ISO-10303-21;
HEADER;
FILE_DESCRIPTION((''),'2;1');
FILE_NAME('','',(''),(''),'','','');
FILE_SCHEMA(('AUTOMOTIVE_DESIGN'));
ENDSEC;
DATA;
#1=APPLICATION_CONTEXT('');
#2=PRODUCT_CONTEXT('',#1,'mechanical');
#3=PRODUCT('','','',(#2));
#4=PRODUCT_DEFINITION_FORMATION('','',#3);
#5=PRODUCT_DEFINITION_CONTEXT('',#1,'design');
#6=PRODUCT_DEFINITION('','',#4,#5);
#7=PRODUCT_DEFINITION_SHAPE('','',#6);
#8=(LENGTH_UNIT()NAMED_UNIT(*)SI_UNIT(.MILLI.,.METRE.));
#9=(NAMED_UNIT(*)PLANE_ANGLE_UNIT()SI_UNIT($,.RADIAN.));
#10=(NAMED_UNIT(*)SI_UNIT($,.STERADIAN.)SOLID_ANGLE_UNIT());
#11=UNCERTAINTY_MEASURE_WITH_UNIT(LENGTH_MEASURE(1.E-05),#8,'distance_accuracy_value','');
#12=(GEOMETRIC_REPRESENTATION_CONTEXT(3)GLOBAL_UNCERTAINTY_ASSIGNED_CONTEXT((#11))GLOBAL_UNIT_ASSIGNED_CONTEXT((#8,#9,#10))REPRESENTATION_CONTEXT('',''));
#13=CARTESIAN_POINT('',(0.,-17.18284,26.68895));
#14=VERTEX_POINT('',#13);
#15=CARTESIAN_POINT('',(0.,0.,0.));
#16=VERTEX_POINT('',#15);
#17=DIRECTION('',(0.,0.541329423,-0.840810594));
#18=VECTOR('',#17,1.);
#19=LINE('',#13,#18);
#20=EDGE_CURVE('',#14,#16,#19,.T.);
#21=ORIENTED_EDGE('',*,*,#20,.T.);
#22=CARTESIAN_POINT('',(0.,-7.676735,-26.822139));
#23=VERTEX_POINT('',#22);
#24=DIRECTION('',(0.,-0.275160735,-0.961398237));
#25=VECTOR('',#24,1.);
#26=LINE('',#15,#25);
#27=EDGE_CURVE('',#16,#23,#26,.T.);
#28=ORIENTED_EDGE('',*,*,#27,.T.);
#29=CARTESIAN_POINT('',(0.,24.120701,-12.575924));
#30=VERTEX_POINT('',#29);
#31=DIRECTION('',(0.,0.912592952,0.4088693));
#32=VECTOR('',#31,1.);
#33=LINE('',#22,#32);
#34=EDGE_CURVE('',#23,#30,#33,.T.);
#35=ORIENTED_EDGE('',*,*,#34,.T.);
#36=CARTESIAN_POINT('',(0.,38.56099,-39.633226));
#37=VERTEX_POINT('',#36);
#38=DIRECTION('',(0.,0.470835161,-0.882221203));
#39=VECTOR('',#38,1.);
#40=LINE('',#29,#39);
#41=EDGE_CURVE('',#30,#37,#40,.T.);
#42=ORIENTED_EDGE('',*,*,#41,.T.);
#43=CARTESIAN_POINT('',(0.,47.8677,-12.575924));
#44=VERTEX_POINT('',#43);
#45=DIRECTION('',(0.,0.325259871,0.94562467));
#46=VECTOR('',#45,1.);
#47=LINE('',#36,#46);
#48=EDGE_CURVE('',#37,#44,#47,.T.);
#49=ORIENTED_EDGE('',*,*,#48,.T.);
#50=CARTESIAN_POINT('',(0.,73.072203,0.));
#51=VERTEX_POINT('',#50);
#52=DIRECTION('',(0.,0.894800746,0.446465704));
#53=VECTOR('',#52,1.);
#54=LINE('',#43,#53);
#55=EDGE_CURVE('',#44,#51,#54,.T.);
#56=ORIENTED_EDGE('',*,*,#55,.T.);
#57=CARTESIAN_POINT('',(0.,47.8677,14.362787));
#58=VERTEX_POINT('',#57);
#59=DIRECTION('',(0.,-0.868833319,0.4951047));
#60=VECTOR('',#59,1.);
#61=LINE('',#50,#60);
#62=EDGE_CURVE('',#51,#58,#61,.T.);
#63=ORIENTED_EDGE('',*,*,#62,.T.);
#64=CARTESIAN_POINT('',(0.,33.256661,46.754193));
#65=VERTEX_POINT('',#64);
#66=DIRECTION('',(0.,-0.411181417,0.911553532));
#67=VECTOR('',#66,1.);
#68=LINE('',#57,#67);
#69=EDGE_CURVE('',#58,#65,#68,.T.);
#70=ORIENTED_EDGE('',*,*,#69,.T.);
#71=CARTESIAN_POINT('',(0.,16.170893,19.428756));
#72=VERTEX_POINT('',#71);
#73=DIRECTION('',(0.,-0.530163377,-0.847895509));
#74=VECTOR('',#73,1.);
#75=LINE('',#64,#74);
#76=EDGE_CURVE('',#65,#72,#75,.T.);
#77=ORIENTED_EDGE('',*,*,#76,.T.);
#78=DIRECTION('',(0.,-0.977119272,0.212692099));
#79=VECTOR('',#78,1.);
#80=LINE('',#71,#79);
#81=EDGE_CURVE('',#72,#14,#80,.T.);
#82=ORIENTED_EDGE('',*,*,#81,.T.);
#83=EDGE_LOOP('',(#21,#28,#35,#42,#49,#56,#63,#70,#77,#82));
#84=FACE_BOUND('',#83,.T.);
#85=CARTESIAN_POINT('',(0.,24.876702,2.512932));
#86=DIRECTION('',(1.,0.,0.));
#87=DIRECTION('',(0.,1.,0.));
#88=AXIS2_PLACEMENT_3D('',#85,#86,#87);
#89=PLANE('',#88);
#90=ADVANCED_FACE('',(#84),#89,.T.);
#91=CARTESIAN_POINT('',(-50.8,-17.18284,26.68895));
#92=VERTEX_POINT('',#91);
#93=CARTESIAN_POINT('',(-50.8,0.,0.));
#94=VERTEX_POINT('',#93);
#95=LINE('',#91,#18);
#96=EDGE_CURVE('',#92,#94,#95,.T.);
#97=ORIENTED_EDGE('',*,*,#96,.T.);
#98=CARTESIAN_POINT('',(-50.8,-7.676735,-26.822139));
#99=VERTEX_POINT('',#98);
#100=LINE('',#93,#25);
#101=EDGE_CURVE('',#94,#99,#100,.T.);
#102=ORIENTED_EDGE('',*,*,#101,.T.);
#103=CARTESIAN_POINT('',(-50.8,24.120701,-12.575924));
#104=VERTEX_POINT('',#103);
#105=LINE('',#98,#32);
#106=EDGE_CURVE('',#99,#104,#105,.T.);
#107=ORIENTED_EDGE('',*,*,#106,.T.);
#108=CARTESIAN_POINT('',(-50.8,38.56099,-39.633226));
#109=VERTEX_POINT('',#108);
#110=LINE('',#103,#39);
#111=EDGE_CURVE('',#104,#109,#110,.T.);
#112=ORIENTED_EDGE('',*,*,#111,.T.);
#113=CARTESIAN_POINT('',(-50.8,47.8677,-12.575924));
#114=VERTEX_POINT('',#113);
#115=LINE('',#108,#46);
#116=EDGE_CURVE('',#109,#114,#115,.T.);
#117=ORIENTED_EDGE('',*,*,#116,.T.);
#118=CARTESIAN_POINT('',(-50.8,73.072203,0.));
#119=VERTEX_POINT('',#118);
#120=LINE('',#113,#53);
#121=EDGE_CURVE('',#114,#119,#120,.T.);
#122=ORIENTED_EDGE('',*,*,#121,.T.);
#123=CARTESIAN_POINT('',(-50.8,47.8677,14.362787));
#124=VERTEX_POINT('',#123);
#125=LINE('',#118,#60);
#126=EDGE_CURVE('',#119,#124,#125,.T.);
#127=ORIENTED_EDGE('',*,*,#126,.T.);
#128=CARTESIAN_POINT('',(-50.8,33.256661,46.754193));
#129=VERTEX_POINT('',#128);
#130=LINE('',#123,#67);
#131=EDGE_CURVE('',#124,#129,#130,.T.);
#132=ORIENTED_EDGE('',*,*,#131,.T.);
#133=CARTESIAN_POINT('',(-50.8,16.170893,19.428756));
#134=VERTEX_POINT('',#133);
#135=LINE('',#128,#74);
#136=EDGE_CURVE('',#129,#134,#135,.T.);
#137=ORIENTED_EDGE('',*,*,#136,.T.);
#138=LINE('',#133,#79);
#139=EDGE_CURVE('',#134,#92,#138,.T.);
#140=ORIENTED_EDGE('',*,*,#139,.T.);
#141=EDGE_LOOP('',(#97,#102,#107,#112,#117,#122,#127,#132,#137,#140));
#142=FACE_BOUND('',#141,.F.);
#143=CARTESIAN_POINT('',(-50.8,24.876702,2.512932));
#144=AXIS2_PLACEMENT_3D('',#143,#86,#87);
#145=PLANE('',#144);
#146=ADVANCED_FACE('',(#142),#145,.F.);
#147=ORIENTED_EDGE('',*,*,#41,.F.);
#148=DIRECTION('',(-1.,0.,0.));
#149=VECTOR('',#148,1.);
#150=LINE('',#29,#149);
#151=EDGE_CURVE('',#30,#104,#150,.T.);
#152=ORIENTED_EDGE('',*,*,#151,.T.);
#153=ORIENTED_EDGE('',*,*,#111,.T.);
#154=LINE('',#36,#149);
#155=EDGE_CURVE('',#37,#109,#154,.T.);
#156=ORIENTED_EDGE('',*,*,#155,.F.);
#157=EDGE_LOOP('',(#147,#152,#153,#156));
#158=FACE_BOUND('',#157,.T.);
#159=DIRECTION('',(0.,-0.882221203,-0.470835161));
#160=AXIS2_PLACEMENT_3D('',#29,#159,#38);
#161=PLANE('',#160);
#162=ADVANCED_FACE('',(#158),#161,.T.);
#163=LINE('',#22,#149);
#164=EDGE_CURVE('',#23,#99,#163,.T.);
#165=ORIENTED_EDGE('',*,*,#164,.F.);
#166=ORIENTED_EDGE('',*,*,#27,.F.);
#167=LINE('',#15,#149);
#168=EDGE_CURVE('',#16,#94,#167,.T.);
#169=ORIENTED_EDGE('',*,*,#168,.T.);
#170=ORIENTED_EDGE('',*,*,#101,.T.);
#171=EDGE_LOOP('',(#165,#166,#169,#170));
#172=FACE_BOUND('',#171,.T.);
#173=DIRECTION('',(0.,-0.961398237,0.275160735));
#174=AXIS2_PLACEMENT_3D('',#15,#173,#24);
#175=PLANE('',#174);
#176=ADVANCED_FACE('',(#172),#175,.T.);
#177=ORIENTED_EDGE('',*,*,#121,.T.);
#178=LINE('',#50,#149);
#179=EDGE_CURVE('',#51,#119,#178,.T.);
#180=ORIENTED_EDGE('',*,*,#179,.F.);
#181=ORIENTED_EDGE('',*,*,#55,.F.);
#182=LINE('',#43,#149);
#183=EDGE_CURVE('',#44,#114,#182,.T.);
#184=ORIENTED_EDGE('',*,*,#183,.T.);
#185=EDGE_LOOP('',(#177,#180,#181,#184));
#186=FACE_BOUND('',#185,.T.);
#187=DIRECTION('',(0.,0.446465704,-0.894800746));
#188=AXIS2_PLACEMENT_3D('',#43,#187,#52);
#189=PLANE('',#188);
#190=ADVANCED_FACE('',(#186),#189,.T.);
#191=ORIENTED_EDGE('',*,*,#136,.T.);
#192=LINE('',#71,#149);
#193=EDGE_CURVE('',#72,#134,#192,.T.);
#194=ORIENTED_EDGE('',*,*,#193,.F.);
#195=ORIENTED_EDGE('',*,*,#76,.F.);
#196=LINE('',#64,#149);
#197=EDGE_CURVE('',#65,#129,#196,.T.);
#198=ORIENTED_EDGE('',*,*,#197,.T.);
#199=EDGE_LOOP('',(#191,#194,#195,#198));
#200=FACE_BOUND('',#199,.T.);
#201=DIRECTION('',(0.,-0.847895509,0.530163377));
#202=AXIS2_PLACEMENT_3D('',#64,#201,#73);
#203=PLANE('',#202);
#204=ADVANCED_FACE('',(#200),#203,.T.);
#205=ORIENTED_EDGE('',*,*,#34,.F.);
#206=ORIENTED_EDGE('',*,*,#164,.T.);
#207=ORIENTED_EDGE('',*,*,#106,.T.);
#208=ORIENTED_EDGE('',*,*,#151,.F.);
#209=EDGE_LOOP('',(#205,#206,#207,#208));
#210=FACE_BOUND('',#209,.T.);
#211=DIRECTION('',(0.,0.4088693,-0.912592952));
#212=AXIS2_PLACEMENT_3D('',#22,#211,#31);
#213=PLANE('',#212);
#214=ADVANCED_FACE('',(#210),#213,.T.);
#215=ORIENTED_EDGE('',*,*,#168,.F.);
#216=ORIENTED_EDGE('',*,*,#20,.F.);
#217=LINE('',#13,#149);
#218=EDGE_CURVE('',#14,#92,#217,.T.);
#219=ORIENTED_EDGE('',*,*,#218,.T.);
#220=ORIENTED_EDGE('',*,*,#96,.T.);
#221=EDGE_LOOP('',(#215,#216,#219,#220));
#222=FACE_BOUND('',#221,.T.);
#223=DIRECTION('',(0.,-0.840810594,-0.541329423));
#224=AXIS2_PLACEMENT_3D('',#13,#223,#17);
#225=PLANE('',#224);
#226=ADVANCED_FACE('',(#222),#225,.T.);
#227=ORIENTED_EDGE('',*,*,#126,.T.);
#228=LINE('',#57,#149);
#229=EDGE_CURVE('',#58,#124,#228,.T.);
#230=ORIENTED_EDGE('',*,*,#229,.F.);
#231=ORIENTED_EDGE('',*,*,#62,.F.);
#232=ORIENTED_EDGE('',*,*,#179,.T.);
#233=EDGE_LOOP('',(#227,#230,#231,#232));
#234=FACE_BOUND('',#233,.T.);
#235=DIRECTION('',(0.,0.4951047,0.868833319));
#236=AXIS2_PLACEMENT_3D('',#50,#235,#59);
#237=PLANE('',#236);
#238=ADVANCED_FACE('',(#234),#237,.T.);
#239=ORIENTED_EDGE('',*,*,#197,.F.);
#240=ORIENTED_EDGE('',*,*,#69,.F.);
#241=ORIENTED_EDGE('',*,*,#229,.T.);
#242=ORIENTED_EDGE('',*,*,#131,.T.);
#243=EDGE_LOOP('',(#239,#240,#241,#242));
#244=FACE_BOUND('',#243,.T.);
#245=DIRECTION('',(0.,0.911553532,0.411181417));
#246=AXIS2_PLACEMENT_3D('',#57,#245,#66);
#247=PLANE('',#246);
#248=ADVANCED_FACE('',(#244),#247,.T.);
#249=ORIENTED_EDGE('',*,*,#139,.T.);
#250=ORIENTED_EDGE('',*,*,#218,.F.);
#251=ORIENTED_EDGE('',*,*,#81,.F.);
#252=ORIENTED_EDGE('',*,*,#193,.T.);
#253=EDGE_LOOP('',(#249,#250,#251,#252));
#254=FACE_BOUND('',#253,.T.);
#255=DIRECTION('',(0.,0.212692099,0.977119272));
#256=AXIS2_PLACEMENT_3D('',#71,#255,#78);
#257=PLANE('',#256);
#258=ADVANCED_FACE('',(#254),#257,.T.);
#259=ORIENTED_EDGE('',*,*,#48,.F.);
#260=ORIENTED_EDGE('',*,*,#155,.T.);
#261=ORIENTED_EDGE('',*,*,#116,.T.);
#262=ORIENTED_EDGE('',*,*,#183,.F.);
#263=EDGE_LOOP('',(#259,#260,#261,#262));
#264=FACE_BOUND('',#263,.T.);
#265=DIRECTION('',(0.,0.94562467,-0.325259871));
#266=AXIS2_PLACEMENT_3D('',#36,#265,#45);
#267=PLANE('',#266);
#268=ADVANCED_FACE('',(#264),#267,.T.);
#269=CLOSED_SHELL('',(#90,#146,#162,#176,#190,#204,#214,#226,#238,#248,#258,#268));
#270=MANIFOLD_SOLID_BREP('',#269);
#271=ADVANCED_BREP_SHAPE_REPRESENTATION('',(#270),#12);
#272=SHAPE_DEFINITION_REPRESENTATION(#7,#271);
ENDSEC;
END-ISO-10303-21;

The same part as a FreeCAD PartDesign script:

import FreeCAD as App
import Part
import Sketcher
Q = App.Units.Quantity

doc = App.newDocument("Part")
body = doc.addObject("PartDesign::Body", "Body")

sketch1 = doc.addObject("Sketcher::SketchObject", "Sketch")
body.addObject(sketch1)
sketch1.AttachmentSupport = (doc.YZ_Plane, [""])
sketch1.MapMode = "FlatFace"
sketch1.addGeometry([
    Part.LineSegment(App.Vector(-17, 27, 0), App.Vector(0, 0, 0)),
    Part.LineSegment(App.Vector(0, 0, 0), App.Vector(-8, -27, 0)),
    Part.LineSegment(App.Vector(-8, -27, 0), App.Vector(24, -13, 0)),
    Part.LineSegment(App.Vector(24, -13, 0), App.Vector(39, -40, 0)),
    Part.LineSegment(App.Vector(39, -40, 0), App.Vector(48, -13, 0)),
    Part.LineSegment(App.Vector(48, -13, 0), App.Vector(73, 0, 0)),
    Part.LineSegment(App.Vector(73, 0, 0), App.Vector(48, 14, 0)),
    Part.LineSegment(App.Vector(48, 14, 0), App.Vector(33, 47, 0)),
    Part.LineSegment(App.Vector(33, 47, 0), App.Vector(16, 19, 0)),
    Part.LineSegment(App.Vector(16, 19, 0), App.Vector(-17, 27, 0)),
], False)
sketch1.addConstraint([
    Sketcher.Constraint("Coincident", 0, 2, 1, 1),
    Sketcher.Constraint("Coincident", 1, 2, 2, 1),
    Sketcher.Constraint("Coincident", 2, 2, 3, 1),
    Sketcher.Constraint("Coincident", 3, 2, 4, 1),
    Sketcher.Constraint("Coincident", 4, 2, 5, 1),
    Sketcher.Constraint("Coincident", 5, 2, 6, 1),
    Sketcher.Constraint("Coincident", 6, 2, 7, 1),
    Sketcher.Constraint("Coincident", 7, 2, 8, 1),
    Sketcher.Constraint("Coincident", 8, 2, 9, 1),
    Sketcher.Constraint("Coincident", 9, 2, 0, 1),
    Sketcher.Constraint("Coincident", 0, 2, -1, 1),
    Sketcher.Constraint("PointOnObject", 5, 2, -1),
    Sketcher.Constraint("Horizontal", 2, 2, 4, 2),
    Sketcher.Constraint("Vertical", 4, 2, 6, 2),
    Sketcher.Constraint("DistanceX", -1, 1, 2, 2, Q("24.120701 mm")),
    Sketcher.Constraint("DistanceX", -1, 1, 4, 2, Q("47.8677 mm")),
    Sketcher.Constraint("DistanceY", 3, 2, 2, 2, Q("27.057302 mm")),
    Sketcher.Constraint("DistanceX", 9, 2, 7, 2, Q("50.439501 mm")),
    Sketcher.Constraint("Distance", 0, Q("31.741929 mm")),
    Sketcher.Constraint("Distance", 3, Q("30.669521 mm")),
    Sketcher.Constraint("Distance", 7, Q("35.534288 mm")),
    Sketcher.Constraint("Distance", 9, Q("34.134761 mm")),
    Sketcher.Constraint("DistanceY", 1, 2, -1, 1, Q("26.822139 mm")),
    Sketcher.Constraint("DistanceX", -1, 1, 7, 2, Q("33.256661 mm")),
    Sketcher.Constraint("DistanceY", 4, 2, 6, 2, Q("26.938711 mm")),
    Sketcher.Constraint("DistanceY", 6, 2, 8, 2, Q("5.065969 mm")),
    Sketcher.Constraint("DistanceX", 8, 2, 7, 2, Q("17.085768 mm")),
    Sketcher.Constraint("Distance", 1, Q("27.899093 mm")),
    Sketcher.Constraint("Distance", 5, Q("28.167727 mm")),
])
pad1 = doc.addObject("PartDesign::Pad", "Pad")
body.addObject(pad1)
pad1.Profile = sketch1
pad1.Length = Q("2 in")
pad1.Reversed = True

doc.recompute()
